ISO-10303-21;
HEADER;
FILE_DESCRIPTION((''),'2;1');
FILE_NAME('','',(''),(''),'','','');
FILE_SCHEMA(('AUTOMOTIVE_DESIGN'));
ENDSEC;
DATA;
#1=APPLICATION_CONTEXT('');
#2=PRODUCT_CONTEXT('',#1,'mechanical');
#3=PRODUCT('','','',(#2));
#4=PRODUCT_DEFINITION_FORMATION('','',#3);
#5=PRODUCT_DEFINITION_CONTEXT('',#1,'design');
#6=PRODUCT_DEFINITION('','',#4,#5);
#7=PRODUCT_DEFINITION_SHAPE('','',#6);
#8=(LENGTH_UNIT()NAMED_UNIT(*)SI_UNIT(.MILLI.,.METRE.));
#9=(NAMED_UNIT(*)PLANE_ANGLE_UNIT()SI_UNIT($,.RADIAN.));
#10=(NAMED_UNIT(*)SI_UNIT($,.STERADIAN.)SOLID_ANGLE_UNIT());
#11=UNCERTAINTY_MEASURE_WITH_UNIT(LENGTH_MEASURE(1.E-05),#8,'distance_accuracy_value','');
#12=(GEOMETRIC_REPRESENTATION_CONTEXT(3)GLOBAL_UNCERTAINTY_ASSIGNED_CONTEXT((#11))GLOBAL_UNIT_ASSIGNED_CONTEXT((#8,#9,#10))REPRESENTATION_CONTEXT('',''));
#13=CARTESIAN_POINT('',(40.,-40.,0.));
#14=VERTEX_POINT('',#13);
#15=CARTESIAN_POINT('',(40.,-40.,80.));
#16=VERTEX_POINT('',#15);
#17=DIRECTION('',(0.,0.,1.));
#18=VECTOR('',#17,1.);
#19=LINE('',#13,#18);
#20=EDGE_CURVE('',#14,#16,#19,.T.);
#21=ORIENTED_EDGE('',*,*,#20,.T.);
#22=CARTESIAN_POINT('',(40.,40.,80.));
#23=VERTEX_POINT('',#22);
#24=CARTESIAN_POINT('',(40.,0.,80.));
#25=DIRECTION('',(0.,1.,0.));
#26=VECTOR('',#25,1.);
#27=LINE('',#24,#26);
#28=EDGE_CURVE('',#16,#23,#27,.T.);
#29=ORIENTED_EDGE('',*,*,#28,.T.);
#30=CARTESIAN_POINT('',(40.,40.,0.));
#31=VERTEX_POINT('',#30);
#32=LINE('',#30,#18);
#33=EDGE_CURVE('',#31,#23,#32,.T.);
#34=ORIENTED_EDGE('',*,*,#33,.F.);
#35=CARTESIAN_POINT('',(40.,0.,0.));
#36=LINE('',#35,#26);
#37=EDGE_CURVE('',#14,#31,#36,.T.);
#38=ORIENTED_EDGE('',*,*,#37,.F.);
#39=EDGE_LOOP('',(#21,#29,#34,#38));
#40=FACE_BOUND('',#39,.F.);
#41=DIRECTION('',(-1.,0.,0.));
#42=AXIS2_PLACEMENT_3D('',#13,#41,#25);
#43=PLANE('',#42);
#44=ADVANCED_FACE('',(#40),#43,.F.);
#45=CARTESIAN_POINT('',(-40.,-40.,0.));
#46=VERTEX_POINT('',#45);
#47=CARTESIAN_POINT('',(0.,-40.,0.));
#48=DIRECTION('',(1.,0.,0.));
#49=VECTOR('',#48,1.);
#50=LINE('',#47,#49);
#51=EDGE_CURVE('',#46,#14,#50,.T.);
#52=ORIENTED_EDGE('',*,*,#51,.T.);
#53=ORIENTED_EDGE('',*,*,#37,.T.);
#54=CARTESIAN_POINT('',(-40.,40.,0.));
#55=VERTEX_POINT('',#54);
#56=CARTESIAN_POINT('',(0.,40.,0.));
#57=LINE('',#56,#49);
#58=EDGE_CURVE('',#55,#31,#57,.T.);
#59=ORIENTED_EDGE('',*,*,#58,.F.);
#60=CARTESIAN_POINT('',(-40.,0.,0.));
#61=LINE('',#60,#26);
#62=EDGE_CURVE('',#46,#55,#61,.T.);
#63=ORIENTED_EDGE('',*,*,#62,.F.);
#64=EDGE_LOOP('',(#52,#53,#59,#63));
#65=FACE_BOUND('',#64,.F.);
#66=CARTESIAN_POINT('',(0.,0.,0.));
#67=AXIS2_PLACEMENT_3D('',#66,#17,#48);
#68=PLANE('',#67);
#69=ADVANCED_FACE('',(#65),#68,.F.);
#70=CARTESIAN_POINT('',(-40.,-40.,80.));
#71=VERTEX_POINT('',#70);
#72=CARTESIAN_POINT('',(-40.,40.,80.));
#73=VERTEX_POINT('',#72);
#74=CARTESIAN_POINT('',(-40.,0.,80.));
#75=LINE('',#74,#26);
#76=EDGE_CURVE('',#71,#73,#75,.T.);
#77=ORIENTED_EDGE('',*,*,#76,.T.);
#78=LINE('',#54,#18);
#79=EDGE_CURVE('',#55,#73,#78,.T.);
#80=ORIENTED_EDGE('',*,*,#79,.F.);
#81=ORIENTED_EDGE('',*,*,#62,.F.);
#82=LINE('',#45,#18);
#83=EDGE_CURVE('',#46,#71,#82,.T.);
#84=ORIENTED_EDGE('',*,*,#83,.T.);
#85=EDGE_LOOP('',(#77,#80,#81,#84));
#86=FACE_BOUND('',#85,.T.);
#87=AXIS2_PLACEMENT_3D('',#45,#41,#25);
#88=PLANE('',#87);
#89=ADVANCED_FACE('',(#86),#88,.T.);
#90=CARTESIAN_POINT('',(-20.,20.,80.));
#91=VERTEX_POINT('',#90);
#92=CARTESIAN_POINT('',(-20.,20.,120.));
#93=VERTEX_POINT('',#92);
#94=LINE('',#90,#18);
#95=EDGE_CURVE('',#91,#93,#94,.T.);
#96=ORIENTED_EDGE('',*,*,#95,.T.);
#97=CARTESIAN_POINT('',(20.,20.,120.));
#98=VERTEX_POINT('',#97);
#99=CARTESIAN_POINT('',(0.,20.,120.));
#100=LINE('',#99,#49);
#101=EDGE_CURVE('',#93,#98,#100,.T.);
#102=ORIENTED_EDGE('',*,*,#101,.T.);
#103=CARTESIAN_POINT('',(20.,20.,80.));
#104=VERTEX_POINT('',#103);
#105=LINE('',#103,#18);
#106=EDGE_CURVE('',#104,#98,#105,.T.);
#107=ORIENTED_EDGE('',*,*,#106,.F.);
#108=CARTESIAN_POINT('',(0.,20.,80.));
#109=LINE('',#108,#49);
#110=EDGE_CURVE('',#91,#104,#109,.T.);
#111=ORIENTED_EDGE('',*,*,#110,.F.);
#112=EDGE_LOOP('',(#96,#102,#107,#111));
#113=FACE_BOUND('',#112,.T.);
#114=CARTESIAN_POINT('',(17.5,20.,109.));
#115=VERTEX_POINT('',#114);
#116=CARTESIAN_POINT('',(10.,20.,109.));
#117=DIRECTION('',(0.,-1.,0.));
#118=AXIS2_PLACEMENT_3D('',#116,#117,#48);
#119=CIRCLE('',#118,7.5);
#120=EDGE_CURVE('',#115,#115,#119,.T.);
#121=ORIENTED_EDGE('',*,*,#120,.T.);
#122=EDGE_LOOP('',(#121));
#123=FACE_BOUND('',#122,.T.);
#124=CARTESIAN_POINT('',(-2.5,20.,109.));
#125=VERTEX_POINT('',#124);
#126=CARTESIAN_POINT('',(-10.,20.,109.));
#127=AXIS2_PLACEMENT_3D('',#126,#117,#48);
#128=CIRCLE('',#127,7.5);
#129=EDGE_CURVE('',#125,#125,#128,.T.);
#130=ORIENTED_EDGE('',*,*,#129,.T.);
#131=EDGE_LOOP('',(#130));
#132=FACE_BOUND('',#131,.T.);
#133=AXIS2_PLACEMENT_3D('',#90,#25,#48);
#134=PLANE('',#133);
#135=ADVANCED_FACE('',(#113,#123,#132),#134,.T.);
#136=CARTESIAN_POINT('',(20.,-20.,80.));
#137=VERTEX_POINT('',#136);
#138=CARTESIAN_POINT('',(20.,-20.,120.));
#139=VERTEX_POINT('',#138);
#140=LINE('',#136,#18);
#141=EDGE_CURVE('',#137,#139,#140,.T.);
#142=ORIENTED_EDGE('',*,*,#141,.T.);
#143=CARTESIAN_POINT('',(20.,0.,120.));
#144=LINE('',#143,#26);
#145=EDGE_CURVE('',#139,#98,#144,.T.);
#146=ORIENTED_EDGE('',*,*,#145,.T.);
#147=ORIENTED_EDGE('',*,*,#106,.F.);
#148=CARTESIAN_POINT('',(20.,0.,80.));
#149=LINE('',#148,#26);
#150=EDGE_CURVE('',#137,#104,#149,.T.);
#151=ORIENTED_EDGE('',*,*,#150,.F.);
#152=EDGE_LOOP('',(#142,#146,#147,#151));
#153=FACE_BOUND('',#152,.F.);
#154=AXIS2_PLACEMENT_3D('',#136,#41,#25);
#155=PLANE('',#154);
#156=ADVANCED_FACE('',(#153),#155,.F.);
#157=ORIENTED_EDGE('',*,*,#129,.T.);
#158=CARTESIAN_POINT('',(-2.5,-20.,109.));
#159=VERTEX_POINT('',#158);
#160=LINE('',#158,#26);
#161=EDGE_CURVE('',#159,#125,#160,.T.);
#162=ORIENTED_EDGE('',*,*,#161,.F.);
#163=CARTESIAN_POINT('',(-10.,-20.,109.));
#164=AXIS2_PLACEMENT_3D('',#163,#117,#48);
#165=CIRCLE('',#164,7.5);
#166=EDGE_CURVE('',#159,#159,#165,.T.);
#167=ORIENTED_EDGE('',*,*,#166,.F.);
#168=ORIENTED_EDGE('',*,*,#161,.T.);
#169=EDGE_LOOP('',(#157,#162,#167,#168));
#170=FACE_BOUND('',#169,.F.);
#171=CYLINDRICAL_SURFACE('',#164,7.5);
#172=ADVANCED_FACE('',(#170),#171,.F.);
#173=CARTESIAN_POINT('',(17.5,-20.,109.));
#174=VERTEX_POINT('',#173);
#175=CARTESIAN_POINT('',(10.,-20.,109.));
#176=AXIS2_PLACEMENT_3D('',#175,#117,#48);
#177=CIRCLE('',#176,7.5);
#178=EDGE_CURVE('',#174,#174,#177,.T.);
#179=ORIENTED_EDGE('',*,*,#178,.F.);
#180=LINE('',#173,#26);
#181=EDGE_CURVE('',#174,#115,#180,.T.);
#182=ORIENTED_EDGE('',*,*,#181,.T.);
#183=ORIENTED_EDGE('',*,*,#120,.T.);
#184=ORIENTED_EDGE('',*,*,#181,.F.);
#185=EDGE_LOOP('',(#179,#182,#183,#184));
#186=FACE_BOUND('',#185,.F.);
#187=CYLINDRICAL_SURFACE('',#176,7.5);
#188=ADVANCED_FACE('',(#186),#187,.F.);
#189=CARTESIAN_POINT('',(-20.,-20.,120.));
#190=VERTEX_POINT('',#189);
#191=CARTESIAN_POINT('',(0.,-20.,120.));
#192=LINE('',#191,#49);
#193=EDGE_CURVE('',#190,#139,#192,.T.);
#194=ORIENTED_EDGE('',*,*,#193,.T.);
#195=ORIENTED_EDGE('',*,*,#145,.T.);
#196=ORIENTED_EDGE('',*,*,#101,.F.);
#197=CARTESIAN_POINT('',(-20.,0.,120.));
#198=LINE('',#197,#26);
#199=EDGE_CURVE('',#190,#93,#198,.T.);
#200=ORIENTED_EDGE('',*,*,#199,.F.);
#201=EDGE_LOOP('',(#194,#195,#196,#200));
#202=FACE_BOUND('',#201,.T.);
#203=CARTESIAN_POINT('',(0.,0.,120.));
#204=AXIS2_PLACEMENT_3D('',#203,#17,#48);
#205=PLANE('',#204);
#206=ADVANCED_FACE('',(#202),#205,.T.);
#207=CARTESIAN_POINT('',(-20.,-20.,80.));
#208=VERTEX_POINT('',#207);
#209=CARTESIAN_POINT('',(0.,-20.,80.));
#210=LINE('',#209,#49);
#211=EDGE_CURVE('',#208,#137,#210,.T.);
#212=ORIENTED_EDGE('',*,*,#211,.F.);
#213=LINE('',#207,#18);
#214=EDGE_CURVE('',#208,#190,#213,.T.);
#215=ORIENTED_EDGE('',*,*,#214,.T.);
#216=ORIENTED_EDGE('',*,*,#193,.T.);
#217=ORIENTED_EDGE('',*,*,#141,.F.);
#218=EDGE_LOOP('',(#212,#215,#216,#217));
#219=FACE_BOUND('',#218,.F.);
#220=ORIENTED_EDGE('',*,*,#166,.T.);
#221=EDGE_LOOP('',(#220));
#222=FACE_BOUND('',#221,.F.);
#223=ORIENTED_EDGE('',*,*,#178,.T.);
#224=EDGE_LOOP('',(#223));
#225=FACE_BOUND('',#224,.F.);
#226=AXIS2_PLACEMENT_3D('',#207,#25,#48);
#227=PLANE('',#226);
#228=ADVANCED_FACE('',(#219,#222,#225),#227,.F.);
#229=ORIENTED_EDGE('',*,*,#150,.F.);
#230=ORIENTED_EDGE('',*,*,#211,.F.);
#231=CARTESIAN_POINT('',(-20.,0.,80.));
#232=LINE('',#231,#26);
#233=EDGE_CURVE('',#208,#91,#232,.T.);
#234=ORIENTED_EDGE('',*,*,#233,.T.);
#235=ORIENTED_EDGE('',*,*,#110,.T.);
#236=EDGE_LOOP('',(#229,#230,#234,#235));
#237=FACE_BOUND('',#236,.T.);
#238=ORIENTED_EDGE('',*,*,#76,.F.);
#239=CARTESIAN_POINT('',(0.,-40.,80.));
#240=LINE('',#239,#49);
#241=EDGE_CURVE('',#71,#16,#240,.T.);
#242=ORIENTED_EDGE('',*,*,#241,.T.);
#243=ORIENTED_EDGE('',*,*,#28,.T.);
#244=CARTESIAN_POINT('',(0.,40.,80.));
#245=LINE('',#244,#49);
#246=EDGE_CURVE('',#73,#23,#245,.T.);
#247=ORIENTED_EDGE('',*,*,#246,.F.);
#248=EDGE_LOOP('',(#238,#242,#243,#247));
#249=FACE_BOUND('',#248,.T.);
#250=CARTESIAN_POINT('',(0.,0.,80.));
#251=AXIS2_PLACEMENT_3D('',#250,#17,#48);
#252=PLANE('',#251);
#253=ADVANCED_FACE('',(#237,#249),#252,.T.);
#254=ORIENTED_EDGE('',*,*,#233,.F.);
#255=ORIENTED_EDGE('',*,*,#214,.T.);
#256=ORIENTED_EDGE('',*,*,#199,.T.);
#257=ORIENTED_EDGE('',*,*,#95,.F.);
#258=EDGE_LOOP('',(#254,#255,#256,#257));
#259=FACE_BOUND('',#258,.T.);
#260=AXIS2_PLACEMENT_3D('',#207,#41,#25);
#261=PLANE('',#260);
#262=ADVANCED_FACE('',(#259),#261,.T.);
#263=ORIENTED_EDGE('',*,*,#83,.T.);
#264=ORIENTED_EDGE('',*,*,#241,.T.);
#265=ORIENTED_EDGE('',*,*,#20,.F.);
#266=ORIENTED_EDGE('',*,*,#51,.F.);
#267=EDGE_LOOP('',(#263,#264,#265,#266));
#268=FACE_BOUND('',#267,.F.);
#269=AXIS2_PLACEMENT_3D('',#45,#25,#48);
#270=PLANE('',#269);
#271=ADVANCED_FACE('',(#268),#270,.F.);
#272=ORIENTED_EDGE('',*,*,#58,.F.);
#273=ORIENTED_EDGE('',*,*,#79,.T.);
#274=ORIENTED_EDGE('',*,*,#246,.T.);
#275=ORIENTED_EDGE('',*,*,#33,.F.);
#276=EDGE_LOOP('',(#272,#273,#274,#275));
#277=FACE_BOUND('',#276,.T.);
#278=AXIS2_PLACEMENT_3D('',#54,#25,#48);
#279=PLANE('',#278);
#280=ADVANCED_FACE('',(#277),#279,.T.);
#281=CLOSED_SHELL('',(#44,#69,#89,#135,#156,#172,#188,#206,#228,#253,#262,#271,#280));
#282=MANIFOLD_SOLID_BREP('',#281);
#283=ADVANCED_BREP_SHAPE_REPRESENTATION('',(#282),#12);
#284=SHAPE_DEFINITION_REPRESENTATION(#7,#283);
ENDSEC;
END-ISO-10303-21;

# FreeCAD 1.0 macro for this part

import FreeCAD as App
import Part
import Sketcher
from FreeCAD import Vector
Q = App.Units.Quantity


def add_polygon(sketch, points):
    """Adds a closed chain of lines whose ends are joined by coincident constraints."""
    first, n = sketch.GeometryCount, len(points)
    for a, b in zip(points, points[1:] + points[:1]):
        sketch.addGeometry(Part.LineSegment(App.Vector(*a, 0), App.Vector(*b, 0)), False)
    for i in range(n):
        sketch.addConstraint(Sketcher.Constraint("Coincident", first + i, 2, first + (i + 1) % n, 1))

doc = App.newDocument("Part")
body = doc.addObject("PartDesign::Body", "Body")

# Sketch on XY plane
sketch1 = doc.addObject("Sketcher::SketchObject", "Sketch")
body.addObject(sketch1)
sketch1.AttachmentSupport = (doc.XY_Plane, [""])
sketch1.MapMode = "FlatFace"
add_polygon(sketch1, [(-40, 40), (-40, -40), (40, -40), (40, 40)])  # lines 0-3
sketch1.addConstraint([
    Sketcher.Constraint("Vertical", 0),
    Sketcher.Constraint("Horizontal", 1),
    Sketcher.Constraint("Vertical", 2),
    Sketcher.Constraint("Horizontal", 3),
    Sketcher.Constraint("Symmetric", 0, 2, 2, 2, -1, 1),
    Sketcher.Constraint("Equal", 3, 0),
    Sketcher.Constraint("DistanceX", 1, 1, 1, 2, Q("80 mm")),
])
pad1 = doc.addObject("PartDesign::Pad", "Pad")
body.addObject(pad1)
pad1.Profile = sketch1
pad1.Length = 80

# Sketch on XY plane
sketch2 = doc.addObject("Sketcher::SketchObject", "Sketch001")
body.addObject(sketch2)
sketch2.AttachmentSupport = (doc.XY_Plane, [""])
sketch2.MapMode = "FlatFace"
sketch2.AttachmentOffset = App.Placement(Vector(0, 0, 80), App.Rotation())
add_polygon(sketch2, [(-20, 20), (-20, -20), (20, -20), (20, 20)])  # lines 0-3
sketch2.addConstraint([
    Sketcher.Constraint("Vertical", 0),
    Sketcher.Constraint("Horizontal", 1),
    Sketcher.Constraint("Vertical", 2),
    Sketcher.Constraint("Horizontal", 3),
    Sketcher.Constraint("Symmetric", 0, 2, 2, 2, -1, 1),
    Sketcher.Constraint("Equal", 3, 0),
    Sketcher.Constraint("DistanceX", 1, 1, 1, 2, Q("40 mm")),
])
pad2 = doc.addObject("PartDesign::Pad", "Pad001")
body.addObject(pad2)
pad2.Profile = sketch2
pad2.Length = 40

# Sketch on XZ plane
sketch3 = doc.addObject("Sketcher::SketchObject", "Sketch002")
body.addObject(sketch3)
sketch3.AttachmentSupport = (doc.XZ_Plane, [""])
sketch3.MapMode = "FlatFace"
sketch3.AttachmentOffset = App.Placement(Vector(0, 0, 20), App.Rotation())
sketch3.addGeometry(Part.Circle(Vector(-10, 109, 0), Vector(0, 0, 1), 8), False)
sketch3.addConstraint([
    Sketcher.Constraint("Diameter", 0, Q("15 mm")),
    Sketcher.Constraint("DistanceX", 0, 3, -1, 1, Q("10 mm")),
    Sketcher.Constraint("DistanceY", -1, 1, 0, 3, Q("109 mm")),
])
pocket1 = doc.addObject("PartDesign::Pocket", "Pocket")
body.addObject(pocket1)
pocket1.Profile = sketch3
pocket1.Length = 40

# Sketch on XZ plane
sketch4 = doc.addObject("Sketcher::SketchObject", "Sketch003")
body.addObject(sketch4)
sketch4.AttachmentSupport = (doc.XZ_Plane, [""])
sketch4.MapMode = "FlatFace"
sketch4.AttachmentOffset = App.Placement(Vector(0, 0, 20), App.Rotation())
sketch4.addGeometry(Part.Circle(Vector(10, 109, 0), Vector(0, 0, 1), 8), False)
sketch4.addConstraint([
    Sketcher.Constraint("Diameter", 0, Q("15 mm")),
    Sketcher.Constraint("DistanceX", -1, 1, 0, 3, Q("10 mm")),
    Sketcher.Constraint("DistanceY", -1, 1, 0, 3, Q("109 mm")),
])
pocket2 = doc.addObject("PartDesign::Pocket", "Pocket001")
body.addObject(pocket2)
pocket2.Profile = sketch4
pocket2.Length = 40

doc.recompute()
